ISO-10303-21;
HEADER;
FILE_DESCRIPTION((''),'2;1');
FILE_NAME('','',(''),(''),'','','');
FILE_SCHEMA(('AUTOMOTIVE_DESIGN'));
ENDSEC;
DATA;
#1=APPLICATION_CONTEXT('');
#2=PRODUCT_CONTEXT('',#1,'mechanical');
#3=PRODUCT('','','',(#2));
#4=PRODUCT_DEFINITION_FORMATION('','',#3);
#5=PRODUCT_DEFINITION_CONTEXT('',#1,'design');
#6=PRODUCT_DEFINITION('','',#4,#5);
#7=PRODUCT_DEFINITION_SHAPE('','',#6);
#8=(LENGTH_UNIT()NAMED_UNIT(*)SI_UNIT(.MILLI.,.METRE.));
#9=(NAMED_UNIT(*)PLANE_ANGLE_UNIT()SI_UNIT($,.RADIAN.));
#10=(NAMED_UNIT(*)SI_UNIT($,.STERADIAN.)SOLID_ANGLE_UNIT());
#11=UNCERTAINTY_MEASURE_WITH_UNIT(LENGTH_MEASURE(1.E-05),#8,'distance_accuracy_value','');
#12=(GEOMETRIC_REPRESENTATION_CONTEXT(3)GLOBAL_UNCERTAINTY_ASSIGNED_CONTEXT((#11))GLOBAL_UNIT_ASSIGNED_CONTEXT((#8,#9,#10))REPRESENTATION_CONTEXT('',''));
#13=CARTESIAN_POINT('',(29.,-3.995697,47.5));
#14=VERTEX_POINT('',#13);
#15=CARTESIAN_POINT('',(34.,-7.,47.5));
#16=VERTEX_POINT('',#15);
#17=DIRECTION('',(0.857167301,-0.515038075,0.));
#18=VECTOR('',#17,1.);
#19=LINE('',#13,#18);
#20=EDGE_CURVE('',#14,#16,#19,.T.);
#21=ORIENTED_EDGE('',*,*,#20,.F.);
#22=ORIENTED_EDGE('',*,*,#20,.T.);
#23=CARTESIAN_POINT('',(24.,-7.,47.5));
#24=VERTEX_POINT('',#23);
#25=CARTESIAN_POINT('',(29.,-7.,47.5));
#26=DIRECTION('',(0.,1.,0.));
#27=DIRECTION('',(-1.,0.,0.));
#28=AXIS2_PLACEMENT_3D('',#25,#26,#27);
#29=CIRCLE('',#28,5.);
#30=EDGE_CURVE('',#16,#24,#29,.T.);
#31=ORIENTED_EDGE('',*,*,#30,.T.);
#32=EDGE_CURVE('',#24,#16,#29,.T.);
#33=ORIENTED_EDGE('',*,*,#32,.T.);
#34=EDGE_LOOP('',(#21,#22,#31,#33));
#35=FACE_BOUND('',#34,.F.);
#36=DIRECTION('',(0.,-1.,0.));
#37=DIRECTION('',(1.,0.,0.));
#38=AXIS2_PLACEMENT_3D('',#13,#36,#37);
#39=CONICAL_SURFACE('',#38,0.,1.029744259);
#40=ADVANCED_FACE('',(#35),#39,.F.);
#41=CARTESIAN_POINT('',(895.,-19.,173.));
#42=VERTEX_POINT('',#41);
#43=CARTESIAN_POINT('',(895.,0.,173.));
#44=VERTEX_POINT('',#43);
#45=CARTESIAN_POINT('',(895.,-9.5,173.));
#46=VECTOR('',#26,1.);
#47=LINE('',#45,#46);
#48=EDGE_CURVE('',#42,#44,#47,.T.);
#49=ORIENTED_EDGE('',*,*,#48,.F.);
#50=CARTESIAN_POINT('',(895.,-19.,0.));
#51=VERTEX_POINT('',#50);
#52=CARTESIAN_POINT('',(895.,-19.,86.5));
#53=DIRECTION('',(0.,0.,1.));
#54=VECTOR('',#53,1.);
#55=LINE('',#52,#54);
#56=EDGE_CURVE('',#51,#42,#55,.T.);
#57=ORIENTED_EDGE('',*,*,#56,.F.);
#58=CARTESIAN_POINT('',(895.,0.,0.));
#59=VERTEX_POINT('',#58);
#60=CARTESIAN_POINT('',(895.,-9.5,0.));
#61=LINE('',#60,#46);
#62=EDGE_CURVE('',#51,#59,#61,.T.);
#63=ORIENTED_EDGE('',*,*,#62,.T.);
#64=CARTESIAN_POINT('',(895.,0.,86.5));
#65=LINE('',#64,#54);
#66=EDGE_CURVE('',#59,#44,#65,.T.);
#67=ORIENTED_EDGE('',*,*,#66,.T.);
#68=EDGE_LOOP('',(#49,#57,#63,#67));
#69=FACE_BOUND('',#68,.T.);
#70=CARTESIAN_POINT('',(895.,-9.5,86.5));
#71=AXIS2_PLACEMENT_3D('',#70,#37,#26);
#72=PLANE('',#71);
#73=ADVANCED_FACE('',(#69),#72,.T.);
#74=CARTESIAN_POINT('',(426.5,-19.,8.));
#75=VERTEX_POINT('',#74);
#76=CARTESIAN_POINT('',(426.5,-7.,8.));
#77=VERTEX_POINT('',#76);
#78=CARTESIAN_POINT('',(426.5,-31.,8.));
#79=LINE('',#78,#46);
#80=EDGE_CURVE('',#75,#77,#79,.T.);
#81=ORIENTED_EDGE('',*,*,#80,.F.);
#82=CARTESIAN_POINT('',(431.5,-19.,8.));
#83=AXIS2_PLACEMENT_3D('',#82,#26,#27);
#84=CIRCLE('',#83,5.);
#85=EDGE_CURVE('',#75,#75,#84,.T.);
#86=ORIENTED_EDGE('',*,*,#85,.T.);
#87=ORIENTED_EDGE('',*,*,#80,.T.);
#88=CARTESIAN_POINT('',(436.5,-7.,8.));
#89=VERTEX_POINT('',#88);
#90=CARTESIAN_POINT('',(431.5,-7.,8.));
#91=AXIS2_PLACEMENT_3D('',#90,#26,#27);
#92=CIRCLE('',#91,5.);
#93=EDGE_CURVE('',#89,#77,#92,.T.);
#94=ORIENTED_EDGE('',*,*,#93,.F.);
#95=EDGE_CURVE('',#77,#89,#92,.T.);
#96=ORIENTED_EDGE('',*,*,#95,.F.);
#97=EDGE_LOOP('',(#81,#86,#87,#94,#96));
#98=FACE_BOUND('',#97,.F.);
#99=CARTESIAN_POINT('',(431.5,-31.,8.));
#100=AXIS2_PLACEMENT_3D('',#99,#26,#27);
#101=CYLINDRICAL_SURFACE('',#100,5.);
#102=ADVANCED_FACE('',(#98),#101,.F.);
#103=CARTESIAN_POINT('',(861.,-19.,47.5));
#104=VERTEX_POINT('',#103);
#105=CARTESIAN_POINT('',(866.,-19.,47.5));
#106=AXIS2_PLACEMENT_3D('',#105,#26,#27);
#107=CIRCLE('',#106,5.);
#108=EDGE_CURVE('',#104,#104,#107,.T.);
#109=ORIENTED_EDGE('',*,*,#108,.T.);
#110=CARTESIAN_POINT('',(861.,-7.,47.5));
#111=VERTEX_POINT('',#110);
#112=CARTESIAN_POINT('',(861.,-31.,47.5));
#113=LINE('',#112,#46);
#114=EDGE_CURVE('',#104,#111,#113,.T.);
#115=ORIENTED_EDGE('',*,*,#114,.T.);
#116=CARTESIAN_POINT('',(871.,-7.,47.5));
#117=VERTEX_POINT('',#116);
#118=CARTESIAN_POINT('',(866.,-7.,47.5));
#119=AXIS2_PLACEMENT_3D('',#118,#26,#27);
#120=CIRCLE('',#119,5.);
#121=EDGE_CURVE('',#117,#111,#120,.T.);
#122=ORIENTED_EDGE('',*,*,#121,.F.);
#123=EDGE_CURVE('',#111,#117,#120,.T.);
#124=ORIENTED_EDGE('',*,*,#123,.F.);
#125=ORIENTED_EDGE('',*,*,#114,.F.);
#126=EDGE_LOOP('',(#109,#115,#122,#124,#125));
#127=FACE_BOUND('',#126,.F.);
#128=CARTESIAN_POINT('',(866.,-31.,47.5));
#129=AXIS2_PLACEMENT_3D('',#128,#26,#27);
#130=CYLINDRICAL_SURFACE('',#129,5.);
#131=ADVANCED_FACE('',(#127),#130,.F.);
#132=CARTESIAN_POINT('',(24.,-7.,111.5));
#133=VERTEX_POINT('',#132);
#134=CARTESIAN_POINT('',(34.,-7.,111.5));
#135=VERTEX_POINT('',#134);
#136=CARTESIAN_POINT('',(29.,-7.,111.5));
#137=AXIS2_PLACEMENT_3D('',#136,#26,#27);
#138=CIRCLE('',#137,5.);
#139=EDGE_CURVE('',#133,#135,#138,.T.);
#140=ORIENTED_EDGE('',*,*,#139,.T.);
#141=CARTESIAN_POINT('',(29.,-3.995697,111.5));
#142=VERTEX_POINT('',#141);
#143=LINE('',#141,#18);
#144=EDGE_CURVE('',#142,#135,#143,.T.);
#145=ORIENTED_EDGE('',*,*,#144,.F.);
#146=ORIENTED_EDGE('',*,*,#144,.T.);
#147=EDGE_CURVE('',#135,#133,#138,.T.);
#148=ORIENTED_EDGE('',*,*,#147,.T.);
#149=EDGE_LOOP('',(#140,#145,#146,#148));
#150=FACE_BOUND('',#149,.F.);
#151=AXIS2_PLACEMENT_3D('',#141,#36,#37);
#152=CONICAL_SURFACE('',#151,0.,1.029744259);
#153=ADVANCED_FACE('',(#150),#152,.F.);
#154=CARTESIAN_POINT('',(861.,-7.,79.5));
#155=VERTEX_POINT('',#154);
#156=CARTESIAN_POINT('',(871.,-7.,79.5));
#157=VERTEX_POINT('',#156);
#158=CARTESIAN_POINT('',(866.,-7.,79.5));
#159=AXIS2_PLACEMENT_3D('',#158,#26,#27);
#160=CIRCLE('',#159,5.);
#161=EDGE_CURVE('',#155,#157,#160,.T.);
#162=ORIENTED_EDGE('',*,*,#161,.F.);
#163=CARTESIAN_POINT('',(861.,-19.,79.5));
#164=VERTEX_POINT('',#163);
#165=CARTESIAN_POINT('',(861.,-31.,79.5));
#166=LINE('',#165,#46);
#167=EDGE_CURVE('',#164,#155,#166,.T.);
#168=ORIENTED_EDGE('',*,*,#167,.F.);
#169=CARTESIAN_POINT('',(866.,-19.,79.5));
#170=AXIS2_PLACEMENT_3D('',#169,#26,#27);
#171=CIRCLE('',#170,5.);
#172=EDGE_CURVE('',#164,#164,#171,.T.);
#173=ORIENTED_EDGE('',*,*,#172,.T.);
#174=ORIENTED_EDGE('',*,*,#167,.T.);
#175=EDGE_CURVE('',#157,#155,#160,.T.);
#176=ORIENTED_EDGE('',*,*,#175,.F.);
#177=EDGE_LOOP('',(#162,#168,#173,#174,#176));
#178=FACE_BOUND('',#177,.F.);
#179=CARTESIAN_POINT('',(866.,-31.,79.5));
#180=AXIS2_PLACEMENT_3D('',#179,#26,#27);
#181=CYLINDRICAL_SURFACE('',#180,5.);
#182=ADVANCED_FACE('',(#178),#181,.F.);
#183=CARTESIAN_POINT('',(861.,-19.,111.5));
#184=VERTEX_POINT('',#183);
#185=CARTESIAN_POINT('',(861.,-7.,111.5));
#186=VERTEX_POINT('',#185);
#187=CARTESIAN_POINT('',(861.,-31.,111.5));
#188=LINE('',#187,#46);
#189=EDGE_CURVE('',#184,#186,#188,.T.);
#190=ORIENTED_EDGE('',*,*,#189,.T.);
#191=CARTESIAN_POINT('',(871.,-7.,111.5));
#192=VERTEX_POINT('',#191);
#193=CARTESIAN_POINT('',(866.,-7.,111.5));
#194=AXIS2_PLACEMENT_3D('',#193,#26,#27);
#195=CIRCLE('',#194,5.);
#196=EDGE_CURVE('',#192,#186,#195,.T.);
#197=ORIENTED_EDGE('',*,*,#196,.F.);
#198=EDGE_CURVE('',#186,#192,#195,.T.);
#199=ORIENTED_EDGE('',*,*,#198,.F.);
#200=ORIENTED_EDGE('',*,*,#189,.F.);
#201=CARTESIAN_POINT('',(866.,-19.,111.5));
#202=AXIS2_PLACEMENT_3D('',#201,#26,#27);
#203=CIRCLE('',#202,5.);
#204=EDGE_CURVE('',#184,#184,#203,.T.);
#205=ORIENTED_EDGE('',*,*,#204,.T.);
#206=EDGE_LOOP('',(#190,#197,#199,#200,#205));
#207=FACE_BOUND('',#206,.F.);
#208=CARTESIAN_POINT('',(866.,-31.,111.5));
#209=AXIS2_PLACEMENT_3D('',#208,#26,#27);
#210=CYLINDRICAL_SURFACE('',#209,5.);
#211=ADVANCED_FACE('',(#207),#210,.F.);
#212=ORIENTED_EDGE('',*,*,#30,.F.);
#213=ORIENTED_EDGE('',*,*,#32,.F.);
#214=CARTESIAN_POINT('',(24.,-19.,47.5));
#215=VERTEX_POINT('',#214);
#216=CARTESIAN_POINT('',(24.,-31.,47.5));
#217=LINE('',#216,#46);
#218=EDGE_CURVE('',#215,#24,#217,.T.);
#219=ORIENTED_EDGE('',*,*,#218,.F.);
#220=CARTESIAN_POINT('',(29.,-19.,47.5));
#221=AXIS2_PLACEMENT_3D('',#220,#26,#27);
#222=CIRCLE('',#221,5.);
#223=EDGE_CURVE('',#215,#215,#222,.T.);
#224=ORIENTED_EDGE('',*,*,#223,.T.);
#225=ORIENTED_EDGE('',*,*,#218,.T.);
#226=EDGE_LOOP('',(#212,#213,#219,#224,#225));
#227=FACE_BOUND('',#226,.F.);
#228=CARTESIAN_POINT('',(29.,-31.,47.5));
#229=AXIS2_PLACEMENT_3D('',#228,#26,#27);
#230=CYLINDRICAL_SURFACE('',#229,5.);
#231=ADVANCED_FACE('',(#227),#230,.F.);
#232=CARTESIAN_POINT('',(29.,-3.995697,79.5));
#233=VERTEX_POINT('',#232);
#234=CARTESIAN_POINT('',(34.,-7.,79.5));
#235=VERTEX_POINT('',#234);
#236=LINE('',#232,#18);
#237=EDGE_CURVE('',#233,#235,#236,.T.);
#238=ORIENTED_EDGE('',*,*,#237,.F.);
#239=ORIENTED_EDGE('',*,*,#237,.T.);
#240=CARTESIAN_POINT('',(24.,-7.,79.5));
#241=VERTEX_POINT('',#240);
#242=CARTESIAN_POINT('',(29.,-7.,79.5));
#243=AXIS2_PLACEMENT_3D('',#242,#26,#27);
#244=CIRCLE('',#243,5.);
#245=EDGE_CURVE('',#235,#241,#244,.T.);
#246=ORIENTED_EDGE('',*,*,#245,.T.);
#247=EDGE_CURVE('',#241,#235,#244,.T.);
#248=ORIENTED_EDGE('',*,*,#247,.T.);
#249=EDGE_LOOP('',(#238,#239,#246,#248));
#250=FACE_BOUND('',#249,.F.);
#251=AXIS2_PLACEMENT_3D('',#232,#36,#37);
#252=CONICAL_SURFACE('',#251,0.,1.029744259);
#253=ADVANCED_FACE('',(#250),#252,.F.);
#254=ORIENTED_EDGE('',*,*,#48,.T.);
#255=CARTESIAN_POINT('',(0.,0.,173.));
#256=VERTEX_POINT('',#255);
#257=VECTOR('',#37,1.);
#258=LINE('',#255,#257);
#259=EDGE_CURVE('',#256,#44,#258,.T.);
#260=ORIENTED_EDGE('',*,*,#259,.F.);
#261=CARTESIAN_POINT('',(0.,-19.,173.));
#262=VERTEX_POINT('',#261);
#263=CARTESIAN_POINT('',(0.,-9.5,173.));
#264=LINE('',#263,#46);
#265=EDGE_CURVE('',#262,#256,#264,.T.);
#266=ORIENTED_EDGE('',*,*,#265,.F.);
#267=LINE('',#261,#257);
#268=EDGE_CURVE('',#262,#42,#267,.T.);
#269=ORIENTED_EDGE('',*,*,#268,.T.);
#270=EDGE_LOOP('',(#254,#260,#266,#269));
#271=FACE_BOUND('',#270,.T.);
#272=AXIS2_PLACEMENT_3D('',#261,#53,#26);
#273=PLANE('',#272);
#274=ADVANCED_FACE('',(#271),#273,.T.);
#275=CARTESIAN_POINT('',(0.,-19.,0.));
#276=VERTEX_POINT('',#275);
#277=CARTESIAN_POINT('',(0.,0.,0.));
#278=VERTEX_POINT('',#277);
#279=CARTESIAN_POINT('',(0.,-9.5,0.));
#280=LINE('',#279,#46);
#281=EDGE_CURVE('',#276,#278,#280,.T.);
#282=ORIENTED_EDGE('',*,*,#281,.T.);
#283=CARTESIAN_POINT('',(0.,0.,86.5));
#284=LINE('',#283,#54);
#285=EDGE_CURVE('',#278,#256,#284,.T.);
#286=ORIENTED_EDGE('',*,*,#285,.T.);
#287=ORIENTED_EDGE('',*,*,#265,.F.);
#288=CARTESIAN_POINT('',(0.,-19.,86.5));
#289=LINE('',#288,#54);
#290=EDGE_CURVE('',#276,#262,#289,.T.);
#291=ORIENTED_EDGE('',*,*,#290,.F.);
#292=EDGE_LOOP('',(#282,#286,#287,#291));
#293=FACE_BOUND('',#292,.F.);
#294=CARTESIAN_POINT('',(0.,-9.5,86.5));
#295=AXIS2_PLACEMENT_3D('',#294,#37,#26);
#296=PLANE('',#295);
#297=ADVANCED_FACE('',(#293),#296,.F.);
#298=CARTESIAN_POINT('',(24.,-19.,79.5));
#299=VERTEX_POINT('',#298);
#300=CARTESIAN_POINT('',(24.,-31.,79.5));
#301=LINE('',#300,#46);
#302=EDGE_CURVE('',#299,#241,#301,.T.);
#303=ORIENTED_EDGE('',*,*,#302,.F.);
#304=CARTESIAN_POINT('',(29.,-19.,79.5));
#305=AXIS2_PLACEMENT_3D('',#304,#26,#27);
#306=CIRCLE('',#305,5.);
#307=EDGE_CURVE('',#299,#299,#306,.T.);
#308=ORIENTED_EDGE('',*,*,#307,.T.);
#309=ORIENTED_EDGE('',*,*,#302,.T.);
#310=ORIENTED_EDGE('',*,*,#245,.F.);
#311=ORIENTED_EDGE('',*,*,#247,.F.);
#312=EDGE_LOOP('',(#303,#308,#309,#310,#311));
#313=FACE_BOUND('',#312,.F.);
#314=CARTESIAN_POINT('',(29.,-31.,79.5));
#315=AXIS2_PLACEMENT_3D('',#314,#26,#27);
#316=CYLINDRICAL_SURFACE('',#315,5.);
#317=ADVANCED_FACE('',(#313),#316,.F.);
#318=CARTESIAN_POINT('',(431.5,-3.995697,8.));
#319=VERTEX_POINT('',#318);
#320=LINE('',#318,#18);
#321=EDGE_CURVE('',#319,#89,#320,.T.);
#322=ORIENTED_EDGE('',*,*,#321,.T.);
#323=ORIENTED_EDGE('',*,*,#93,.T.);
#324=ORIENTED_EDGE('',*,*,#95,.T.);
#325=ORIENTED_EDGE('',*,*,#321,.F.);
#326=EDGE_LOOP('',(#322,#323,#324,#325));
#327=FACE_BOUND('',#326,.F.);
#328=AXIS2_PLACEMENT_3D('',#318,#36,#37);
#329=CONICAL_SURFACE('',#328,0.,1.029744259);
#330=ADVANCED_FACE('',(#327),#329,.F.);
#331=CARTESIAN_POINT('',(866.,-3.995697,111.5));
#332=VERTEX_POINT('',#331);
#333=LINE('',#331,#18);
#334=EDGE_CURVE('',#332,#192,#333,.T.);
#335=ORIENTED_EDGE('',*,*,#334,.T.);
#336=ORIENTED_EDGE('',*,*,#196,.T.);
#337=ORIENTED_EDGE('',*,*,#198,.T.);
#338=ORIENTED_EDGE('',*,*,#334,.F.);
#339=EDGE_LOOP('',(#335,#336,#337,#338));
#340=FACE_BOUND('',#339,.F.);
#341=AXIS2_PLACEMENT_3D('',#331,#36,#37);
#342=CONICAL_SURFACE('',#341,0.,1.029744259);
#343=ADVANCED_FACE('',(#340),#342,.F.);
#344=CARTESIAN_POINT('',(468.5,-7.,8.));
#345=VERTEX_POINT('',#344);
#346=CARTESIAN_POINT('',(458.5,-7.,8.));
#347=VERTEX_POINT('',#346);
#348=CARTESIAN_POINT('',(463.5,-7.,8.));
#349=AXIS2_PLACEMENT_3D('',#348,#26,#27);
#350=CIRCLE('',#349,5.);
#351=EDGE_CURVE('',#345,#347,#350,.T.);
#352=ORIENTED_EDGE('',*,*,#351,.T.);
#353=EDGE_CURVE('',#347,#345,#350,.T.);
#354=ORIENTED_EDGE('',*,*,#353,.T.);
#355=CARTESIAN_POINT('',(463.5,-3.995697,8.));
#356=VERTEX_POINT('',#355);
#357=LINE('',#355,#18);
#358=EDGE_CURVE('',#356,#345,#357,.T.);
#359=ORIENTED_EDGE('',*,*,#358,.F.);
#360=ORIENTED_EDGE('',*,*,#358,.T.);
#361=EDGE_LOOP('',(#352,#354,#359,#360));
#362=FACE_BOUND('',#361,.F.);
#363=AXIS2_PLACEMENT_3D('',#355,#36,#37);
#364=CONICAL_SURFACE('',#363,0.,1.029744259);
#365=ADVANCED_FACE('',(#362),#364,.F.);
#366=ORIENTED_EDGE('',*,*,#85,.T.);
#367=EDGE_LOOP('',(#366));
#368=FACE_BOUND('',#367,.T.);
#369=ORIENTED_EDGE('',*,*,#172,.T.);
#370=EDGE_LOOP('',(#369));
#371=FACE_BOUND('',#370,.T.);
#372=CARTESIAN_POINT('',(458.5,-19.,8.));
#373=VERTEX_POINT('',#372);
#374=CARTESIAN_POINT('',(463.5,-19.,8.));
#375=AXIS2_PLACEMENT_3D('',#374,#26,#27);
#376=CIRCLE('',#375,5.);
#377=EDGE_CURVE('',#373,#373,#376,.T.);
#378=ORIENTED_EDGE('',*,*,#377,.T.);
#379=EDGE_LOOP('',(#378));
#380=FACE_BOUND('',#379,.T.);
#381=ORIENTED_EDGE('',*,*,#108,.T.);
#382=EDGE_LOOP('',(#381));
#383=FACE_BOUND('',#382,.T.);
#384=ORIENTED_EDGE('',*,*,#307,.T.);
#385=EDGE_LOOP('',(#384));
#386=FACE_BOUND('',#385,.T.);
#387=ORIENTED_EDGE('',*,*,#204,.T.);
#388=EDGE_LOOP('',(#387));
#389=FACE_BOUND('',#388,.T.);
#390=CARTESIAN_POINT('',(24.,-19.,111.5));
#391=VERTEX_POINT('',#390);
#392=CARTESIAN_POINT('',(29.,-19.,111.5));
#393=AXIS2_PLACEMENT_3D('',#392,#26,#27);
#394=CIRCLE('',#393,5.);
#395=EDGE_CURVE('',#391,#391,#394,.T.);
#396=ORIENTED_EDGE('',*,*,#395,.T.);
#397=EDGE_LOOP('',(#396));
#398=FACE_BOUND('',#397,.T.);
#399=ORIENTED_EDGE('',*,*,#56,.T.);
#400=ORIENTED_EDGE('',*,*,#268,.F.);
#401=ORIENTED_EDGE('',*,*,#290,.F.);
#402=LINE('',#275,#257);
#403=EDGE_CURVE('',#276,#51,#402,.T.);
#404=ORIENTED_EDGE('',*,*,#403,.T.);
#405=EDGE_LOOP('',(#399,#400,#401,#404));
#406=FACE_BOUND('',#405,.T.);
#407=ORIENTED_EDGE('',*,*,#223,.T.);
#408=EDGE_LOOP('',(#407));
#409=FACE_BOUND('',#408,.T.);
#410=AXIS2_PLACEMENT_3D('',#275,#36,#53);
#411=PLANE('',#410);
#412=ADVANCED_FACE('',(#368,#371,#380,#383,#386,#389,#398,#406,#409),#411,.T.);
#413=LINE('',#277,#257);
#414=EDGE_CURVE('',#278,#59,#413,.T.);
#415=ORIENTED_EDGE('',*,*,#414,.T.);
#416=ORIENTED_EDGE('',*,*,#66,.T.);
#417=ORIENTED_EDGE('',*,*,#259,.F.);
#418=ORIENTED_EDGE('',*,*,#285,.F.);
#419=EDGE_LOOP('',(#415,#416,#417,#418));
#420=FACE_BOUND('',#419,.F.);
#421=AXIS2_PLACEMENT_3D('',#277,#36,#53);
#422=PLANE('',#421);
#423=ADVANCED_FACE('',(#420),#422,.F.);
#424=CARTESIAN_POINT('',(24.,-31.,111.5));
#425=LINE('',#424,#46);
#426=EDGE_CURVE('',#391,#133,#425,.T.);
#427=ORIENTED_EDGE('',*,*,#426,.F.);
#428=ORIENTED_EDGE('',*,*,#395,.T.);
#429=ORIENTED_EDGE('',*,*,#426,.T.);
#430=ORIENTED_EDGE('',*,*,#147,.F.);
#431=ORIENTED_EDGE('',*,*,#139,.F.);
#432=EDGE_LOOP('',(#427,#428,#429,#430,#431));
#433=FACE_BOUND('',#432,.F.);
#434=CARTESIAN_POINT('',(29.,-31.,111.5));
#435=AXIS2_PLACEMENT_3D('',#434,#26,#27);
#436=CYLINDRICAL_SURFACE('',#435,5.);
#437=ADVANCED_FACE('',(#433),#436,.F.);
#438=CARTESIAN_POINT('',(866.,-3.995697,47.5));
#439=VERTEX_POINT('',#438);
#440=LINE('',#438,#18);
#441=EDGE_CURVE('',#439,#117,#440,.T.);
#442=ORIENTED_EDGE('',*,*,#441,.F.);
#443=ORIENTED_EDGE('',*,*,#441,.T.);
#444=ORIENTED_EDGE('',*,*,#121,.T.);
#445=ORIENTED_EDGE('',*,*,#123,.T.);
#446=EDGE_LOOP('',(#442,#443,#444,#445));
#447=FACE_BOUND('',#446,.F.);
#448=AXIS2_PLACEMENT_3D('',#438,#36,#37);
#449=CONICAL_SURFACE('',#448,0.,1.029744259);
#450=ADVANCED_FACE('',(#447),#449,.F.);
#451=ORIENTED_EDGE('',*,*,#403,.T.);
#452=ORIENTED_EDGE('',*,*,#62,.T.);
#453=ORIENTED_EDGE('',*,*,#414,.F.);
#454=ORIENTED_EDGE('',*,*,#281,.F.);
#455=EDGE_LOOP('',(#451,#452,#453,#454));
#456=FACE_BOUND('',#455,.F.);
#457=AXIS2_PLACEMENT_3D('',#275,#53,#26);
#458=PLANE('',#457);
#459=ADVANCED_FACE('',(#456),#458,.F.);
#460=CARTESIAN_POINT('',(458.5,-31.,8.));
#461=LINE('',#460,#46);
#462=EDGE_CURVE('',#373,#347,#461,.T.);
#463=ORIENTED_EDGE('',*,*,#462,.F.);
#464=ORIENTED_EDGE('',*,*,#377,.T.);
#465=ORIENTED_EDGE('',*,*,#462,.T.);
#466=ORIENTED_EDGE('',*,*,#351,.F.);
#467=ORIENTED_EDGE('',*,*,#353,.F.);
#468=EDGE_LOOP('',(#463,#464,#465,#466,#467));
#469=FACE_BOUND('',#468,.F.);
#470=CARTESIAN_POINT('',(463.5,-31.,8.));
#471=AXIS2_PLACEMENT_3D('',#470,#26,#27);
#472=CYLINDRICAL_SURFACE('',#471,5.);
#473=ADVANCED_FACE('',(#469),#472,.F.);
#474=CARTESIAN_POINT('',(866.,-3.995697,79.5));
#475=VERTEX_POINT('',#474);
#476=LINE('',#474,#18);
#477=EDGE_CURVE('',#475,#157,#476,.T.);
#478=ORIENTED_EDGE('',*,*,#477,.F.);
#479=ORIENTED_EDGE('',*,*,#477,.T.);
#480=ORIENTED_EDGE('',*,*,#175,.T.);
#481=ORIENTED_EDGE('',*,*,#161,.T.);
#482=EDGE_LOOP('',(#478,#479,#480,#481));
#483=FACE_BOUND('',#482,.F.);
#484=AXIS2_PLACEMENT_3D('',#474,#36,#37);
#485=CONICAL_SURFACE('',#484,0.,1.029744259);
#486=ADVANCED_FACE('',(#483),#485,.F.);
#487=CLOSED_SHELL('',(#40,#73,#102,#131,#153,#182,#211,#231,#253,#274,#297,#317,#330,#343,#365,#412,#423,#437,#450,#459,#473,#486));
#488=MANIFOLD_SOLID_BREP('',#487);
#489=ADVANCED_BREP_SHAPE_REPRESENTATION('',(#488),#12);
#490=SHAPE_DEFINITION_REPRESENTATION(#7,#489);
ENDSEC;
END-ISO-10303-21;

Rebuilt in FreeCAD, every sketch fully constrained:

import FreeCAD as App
import Part
import Sketcher

doc = App.newDocument("Part")
body = doc.addObject("PartDesign::Body", "Body")

# Sketch on YZ plane
sketch1 = doc.addObject("Sketcher::SketchObject", "Sketch")
body.addObject(sketch1)
sketch1.AttachmentSupport = (doc.YZ_Plane, [""])
sketch1.MapMode = "FlatFace"
sketch1.addGeometry([
    Part.LineSegment(App.Vector(-19, 173, 0), App.Vector(-19, 0, 0)),
    Part.LineSegment(App.Vector(-19, 0, 0), App.Vector(0, 0, 0)),
    Part.LineSegment(App.Vector(0, 0, 0), App.Vector(0, 173, 0)),
    Part.LineSegment(App.Vector(0, 173, 0), App.Vector(-19, 173, 0)),
], False)
sketch1.addConstraint([
    Sketcher.Constraint("Coincident", 0, 2, 1, 1),
    Sketcher.Constraint("Coincident", 1, 2, 2, 1),
    Sketcher.Constraint("Coincident", 2, 2, 3, 1),
    Sketcher.Constraint("Coincident", 3, 2, 0, 1),
    Sketcher.Constraint("Vertical", 0),
    Sketcher.Constraint("Horizontal", 1),
    Sketcher.Constraint("Vertical", 2),
    Sketcher.Constraint("Horizontal", 3),
    Sketcher.Constraint("Coincident", 1, 2, -1, 1),
    Sketcher.Constraint("DistanceX", 1, 1, 1, 2, 19.0),
    Sketcher.Constraint("DistanceY", 0, 2, 0, 1, 173.0),
])
pad1 = doc.addObject("PartDesign::Pad", "Pad")
body.addObject(pad1)
pad1.Profile = sketch1
pad1.Length = 895

# Sketch on XZ plane
sketch2 = doc.addObject("Sketcher::SketchObject", "Sketch001")
body.addObject(sketch2)
sketch2.AttachmentSupport = (doc.XZ_Plane, [""])
sketch2.MapMode = "FlatFace"
sketch2.AttachmentOffset = App.Placement(App.Vector(0, 0, 19), App.Rotation())
sketch2.addGeometry([
    Part.Circle(App.Vector(29, 112, 0), App.Vector(0, 0, 1), 5),  # 0
    Part.Circle(App.Vector(29, 80, 0), App.Vector(0, 0, 1), 5),  # 1
    Part.Circle(App.Vector(29, 48, 0), App.Vector(0, 0, 1), 5),  # 2
    Part.Circle(App.Vector(432, 8, 0), App.Vector(0, 0, 1), 5),  # 3
    Part.Circle(App.Vector(464, 8, 0), App.Vector(0, 0, 1), 5),  # 4
    Part.Circle(App.Vector(866, 48, 0), App.Vector(0, 0, 1), 5),  # 5
    Part.Circle(App.Vector(866, 80, 0), App.Vector(0, 0, 1), 5),  # 6
    Part.Circle(App.Vector(866, 112, 0), App.Vector(0, 0, 1), 5),  # 7
], False)
sketch2.addConstraint([
    Sketcher.Constraint("Equal", 0, 1),
    Sketcher.Constraint("Equal", 1, 2),
    Sketcher.Constraint("Equal", 2, 3),
    Sketcher.Constraint("Equal", 3, 4),
    Sketcher.Constraint("Equal", 4, 5),
    Sketcher.Constraint("Equal", 5, 6),
    Sketcher.Constraint("Equal", 6, 7),
    Sketcher.Constraint("Horizontal", 3, 3, 4, 3),
    Sketcher.Constraint("Horizontal", 2, 3, 5, 3),
    Sketcher.Constraint("Horizontal", 1, 3, 6, 3),
    Sketcher.Constraint("Horizontal", 0, 3, 7, 3),
    Sketcher.Constraint("Vertical", 0, 3, 1, 3),
    Sketcher.Constraint("Vertical", 1, 3, 2, 3),
    Sketcher.Constraint("Vertical", 5, 3, 6, 3),
    Sketcher.Constraint("Vertical", 6, 3, 7, 3),
    Sketcher.Constraint("Diameter", 0, 10.0),
    Sketcher.Constraint("DistanceX", -1, 1, 0, 3, 29.0),
    Sketcher.Constraint("DistanceY", -1, 1, 3, 3, 8.0),
    Sketcher.Constraint("DistanceX", -1, 1, 5, 3, 866.0),
    Sketcher.Constraint("DistanceY", 1, 3, 0, 3, 32.0),
    Sketcher.Constraint("DistanceY", 2, 3, 1, 3, 32.0),
    Sketcher.Constraint("DistanceX", 3, 3, 4, 3, 32.0),
    Sketcher.Constraint("DistanceY", -1, 1, 0, 3, 111.5),
    Sketcher.Constraint("DistanceX", -1, 1, 3, 3, 431.5),
])
doc.recompute()
hole = doc.addObject("PartDesign::Hole", "Hole")
body.addObject(hole)
hole.Profile = sketch2
hole.ThreadType = "None"
hole.Diameter = 10
hole.DepthType = "Dimension"
hole.Depth = 12
hole.DrillPoint = "Angled"
hole.DrillPointAngle = 118

doc.recompute()
